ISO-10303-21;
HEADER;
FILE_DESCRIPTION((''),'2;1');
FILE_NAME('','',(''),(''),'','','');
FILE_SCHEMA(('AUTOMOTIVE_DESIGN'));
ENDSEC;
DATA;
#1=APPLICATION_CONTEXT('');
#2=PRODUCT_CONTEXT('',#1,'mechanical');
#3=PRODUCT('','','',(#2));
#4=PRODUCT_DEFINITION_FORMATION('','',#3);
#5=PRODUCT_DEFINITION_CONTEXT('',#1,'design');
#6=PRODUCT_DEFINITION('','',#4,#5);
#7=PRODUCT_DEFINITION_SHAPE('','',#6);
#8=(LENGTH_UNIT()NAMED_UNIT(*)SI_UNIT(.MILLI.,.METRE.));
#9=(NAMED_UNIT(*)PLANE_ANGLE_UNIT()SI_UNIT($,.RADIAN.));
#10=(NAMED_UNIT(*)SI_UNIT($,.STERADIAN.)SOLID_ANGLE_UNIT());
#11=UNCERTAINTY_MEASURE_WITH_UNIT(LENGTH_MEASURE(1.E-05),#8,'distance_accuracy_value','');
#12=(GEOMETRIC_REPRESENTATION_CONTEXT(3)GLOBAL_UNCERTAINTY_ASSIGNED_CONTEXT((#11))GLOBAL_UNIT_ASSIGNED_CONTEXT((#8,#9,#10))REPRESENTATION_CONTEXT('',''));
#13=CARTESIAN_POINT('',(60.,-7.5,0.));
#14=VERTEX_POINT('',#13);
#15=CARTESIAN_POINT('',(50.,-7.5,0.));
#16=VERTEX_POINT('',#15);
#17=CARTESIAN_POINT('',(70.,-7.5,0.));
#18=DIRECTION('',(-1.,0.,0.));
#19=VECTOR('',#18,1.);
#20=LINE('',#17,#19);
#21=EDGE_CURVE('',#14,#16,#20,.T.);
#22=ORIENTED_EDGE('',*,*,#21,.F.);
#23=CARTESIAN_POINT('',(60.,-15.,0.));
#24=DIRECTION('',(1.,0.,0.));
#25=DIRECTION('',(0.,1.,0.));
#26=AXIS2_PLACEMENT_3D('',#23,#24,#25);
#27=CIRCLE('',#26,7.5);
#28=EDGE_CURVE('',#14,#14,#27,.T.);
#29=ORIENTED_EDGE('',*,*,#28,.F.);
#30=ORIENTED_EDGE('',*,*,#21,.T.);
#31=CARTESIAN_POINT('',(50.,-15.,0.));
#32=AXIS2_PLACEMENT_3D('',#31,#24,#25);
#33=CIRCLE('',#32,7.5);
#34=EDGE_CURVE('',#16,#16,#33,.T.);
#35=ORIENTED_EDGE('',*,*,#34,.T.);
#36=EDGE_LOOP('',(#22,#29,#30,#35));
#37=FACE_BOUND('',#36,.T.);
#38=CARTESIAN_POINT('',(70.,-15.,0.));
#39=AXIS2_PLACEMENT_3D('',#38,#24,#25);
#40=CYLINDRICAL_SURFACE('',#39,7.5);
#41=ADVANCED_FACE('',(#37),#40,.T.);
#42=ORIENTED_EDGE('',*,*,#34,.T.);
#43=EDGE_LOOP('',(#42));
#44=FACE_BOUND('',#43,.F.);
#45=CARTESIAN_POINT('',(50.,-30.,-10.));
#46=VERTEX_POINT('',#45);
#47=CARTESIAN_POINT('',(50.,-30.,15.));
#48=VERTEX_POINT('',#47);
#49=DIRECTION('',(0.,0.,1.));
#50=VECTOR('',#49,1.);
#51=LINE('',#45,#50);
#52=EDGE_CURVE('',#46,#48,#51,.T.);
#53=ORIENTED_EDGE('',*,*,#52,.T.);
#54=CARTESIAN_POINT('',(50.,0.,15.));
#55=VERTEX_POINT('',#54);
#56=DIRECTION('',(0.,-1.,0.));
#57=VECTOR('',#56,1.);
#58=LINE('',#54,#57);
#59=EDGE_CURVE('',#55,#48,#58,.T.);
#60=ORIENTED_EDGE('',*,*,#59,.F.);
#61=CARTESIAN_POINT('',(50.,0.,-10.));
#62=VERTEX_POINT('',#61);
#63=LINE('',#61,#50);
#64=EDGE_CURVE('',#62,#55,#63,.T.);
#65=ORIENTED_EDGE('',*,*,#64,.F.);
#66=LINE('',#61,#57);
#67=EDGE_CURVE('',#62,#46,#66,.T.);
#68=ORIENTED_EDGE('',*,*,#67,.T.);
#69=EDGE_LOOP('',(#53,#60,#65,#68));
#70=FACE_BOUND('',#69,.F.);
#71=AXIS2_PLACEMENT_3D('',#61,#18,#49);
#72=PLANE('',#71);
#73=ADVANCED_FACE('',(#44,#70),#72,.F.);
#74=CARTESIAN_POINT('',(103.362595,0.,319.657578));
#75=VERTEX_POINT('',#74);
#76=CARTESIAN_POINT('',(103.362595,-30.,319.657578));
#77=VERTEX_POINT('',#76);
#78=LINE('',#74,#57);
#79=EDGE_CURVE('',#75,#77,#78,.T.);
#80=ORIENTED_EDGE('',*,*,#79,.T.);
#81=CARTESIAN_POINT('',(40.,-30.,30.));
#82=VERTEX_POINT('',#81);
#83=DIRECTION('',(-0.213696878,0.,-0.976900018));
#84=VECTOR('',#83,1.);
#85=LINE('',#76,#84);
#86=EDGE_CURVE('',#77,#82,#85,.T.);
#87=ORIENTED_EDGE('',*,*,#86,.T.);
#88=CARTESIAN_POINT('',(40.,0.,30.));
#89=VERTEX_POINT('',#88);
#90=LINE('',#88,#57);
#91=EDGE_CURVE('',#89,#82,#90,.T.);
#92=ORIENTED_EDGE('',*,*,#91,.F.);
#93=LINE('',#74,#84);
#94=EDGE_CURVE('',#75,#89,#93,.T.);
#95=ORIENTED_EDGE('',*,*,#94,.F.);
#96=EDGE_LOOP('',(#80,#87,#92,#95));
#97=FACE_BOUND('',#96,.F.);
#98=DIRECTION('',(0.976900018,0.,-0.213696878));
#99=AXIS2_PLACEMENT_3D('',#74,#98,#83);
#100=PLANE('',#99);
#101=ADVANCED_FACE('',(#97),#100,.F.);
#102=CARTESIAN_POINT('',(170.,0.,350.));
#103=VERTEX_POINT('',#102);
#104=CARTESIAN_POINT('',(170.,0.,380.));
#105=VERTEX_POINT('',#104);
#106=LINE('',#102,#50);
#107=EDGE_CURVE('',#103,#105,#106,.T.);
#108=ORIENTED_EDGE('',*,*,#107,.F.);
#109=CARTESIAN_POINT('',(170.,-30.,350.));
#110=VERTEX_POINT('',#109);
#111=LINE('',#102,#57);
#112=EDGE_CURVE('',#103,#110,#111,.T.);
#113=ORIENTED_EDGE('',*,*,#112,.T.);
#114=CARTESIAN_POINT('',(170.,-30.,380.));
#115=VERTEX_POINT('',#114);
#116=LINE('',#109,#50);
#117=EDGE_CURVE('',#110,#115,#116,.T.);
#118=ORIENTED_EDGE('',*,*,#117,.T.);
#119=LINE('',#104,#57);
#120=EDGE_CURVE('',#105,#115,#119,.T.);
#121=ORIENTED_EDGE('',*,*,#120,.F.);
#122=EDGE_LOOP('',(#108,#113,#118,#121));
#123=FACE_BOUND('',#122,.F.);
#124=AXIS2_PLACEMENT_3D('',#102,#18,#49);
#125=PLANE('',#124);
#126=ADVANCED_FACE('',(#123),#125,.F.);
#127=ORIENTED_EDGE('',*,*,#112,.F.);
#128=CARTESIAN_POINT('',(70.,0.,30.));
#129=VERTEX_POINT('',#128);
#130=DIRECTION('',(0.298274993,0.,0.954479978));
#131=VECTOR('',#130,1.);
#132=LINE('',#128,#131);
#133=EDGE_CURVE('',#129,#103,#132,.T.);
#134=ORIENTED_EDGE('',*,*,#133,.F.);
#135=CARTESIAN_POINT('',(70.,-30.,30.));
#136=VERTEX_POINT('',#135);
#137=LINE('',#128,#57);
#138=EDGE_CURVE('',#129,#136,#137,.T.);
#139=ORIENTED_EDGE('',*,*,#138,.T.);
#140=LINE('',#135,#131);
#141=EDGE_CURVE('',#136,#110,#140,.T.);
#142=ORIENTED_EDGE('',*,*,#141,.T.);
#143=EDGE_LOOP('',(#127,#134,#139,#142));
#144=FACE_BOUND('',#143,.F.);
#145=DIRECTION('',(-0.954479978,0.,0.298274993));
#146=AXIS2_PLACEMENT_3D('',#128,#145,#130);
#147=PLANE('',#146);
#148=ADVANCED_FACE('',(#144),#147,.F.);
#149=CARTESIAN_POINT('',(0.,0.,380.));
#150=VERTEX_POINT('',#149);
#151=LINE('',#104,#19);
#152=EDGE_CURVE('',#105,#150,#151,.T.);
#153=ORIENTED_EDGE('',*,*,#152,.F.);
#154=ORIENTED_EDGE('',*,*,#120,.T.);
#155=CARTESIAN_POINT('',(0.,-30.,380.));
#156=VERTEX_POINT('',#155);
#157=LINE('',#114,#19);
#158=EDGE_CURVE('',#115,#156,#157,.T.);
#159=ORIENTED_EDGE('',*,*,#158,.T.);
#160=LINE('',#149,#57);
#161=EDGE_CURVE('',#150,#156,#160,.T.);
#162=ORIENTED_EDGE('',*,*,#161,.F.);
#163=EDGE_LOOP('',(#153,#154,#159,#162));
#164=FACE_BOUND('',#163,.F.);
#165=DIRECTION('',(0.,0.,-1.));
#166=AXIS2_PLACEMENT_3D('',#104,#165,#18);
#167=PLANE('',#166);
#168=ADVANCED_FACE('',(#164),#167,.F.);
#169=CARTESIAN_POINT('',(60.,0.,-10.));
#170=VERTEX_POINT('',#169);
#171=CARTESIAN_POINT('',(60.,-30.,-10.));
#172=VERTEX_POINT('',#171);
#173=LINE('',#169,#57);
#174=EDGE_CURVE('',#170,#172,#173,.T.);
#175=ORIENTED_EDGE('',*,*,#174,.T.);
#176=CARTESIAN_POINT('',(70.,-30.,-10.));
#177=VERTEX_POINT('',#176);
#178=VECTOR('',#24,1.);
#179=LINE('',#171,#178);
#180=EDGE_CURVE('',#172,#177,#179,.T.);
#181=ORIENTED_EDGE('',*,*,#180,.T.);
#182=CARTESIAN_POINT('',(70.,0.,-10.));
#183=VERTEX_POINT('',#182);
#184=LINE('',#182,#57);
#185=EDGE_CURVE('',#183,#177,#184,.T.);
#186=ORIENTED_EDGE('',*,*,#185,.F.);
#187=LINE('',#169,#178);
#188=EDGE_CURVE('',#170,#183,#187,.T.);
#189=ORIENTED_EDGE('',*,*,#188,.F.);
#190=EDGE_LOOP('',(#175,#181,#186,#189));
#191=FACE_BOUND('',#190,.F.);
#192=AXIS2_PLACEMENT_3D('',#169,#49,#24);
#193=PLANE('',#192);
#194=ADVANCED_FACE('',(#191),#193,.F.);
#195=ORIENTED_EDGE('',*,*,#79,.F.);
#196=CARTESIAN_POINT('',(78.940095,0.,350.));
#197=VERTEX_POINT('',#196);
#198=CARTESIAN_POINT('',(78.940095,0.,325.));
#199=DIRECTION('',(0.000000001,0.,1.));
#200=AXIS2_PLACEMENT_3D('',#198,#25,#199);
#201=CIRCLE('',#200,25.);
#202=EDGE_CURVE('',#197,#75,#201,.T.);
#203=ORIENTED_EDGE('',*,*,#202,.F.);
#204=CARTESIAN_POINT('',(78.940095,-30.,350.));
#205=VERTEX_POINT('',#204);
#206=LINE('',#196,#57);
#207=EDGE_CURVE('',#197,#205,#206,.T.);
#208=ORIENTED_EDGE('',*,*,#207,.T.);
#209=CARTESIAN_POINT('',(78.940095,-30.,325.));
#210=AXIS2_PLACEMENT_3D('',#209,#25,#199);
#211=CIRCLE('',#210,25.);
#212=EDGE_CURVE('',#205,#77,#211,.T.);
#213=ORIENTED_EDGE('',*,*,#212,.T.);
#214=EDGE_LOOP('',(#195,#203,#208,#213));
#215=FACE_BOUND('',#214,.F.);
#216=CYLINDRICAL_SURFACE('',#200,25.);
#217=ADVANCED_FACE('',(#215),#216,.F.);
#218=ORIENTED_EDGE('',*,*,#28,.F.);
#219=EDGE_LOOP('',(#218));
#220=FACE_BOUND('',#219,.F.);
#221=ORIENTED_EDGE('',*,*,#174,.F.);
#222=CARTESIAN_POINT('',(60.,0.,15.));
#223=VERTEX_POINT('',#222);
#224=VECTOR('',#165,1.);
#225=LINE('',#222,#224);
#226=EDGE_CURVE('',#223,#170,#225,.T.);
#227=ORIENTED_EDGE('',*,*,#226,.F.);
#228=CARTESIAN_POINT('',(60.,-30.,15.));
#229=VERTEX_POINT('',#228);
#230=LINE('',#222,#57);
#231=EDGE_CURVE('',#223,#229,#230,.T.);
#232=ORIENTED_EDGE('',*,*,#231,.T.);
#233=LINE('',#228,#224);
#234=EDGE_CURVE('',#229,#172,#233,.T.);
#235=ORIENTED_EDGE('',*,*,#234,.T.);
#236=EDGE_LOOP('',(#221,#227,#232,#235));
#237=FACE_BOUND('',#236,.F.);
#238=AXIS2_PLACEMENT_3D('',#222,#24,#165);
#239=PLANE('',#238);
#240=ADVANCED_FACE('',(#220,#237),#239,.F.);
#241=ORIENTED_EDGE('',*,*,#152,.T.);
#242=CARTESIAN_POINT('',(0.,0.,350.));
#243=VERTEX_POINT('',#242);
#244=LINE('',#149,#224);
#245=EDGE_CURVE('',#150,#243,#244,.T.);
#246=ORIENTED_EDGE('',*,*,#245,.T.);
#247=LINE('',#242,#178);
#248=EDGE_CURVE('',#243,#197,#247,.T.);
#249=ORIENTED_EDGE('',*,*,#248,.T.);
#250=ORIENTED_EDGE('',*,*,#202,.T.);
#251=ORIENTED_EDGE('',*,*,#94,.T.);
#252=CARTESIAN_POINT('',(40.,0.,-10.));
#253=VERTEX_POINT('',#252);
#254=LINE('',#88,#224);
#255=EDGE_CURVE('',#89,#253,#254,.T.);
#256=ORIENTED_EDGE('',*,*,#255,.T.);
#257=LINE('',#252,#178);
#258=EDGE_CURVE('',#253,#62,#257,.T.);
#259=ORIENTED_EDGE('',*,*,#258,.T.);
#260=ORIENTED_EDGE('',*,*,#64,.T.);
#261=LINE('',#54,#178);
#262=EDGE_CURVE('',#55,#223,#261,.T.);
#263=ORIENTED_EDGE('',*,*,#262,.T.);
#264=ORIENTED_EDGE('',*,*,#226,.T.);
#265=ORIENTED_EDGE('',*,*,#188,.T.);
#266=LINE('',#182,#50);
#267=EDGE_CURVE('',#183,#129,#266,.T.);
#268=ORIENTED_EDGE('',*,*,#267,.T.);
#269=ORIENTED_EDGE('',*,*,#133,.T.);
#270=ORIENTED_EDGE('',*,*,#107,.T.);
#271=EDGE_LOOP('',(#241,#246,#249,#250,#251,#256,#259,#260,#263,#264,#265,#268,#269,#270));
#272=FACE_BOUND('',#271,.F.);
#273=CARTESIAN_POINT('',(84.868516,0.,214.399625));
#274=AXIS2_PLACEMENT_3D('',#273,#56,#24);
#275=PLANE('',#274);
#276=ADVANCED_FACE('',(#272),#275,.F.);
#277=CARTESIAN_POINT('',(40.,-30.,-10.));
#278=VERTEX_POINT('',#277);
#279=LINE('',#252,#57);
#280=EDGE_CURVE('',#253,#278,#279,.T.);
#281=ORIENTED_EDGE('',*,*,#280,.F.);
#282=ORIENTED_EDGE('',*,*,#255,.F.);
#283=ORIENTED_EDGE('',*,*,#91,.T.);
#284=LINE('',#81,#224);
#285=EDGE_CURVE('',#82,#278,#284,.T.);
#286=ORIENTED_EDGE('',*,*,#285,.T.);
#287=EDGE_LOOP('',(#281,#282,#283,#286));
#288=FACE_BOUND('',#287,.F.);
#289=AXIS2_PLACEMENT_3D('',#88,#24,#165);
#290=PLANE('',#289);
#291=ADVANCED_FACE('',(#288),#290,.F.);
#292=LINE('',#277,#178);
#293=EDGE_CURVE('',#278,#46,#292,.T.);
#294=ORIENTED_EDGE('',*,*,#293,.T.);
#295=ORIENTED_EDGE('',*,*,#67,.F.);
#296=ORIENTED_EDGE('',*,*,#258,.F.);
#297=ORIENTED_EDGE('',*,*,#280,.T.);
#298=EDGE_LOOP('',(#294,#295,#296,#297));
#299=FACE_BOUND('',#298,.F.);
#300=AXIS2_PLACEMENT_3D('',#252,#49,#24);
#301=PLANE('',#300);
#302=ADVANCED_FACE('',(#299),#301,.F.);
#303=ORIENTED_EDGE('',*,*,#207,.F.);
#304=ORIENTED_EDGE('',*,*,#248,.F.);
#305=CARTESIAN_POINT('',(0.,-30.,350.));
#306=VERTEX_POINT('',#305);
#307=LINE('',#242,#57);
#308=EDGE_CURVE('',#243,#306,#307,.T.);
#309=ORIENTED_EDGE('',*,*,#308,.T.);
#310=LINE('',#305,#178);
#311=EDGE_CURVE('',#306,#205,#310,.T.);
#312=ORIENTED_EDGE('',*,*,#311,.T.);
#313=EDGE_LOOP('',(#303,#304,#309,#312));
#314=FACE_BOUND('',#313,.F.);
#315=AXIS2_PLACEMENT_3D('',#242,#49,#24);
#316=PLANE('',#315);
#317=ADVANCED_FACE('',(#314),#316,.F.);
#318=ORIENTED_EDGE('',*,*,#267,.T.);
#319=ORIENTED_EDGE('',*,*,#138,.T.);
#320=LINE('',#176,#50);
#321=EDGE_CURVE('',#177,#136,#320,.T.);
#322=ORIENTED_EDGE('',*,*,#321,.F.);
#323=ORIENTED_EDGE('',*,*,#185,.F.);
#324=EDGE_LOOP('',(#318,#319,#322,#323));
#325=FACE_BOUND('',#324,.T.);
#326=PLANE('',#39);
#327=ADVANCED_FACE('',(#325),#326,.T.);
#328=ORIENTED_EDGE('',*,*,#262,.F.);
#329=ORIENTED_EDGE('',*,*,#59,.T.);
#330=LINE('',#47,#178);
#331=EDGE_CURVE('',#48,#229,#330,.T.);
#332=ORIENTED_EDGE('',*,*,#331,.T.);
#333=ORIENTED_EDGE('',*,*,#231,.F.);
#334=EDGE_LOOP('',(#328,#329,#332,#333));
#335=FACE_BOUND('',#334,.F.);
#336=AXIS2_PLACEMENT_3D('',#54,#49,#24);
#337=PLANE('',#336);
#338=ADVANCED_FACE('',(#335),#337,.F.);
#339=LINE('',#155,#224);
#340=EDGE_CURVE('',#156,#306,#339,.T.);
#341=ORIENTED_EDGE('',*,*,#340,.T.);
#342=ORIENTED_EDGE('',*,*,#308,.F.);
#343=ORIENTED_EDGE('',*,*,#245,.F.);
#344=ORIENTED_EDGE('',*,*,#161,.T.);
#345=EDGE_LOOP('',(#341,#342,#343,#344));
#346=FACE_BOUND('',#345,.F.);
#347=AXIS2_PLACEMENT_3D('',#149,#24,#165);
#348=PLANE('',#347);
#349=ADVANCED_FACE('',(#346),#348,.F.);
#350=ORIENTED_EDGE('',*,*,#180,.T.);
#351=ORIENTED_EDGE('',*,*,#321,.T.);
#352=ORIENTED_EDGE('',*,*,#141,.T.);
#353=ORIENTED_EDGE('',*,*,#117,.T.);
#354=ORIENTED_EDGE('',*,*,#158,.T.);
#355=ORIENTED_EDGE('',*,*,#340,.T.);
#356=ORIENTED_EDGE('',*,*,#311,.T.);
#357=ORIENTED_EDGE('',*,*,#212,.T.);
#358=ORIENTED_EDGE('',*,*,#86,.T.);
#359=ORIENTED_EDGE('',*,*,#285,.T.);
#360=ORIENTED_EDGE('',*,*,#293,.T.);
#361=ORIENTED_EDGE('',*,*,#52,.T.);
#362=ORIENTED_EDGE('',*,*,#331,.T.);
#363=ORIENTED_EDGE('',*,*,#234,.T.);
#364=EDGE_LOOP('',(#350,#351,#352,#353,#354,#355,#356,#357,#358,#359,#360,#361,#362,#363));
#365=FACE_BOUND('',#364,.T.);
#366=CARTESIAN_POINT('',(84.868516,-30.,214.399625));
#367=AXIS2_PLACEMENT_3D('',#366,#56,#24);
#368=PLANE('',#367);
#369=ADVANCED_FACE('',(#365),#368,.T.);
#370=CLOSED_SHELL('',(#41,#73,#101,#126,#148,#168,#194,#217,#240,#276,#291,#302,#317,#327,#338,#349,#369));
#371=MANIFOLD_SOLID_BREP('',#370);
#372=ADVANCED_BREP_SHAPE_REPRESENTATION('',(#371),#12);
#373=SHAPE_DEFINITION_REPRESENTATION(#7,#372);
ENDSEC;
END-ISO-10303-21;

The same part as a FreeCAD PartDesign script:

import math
import FreeCAD as App
import Part
import Sketcher

doc = App.newDocument("Part")
body = doc.addObject("PartDesign::Body", "Body")

sketch1 = body.newObject("Sketcher::SketchObject", "Sketch")
sketch1.AttachmentSupport = (doc.getObject("XZ_Plane"), [""])
sketch1.MapMode = "FlatFace"
sketch1.addGeometry(Part.ArcOfCircle(Part.Circle(App.Vector(79, 325, 0), App.Vector(0, 0, 1), 25), math.radians(-12), math.radians(90)), False)
sketch1.addGeometry(Part.LineSegment(App.Vector(103, 320, 0), App.Vector(40, 30, 0)), False)
sketch1.addGeometry(Part.LineSegment(App.Vector(40, 30, 0), App.Vector(40, -10, 0)), False)
sketch1.addGeometry(Part.LineSegment(App.Vector(40, -10, 0), App.Vector(50, -10, 0)), False)
sketch1.addGeometry(Part.LineSegment(App.Vector(50, -10, 0), App.Vector(50, 15, 0)), False)
sketch1.addGeometry(Part.LineSegment(App.Vector(50, 15, 0), App.Vector(60, 15, 0)), False)
sketch1.addGeometry(Part.LineSegment(App.Vector(60, 15, 0), App.Vector(60, -10, 0)), False)
sketch1.addGeometry(Part.LineSegment(App.Vector(60, -10, 0), App.Vector(70, -10, 0)), False)
sketch1.addGeometry(Part.LineSegment(App.Vector(70, -10, 0), App.Vector(70, 30, 0)), False)
sketch1.addGeometry(Part.LineSegment(App.Vector(70, 30, 0), App.Vector(170, 350, 0)), False)
sketch1.addGeometry(Part.LineSegment(App.Vector(170, 350, 0), App.Vector(170, 380, 0)), False)
sketch1.addGeometry(Part.LineSegment(App.Vector(170, 380, 0), App.Vector(0, 380, 0)), False)
sketch1.addGeometry(Part.LineSegment(App.Vector(0, 380, 0), App.Vector(0, 350, 0)), False)
sketch1.addGeometry(Part.LineSegment(App.Vector(0, 350, 0), App.Vector(79, 350, 0)), False)
sketch1.addConstraint(Sketcher.Constraint("Tangent", 0, 1, 1, 1))
sketch1.addConstraint(Sketcher.Constraint("Coincident", 1, 2, 2, 1))
sketch1.addConstraint(Sketcher.Constraint("Coincident", 2, 2, 3, 1))
sketch1.addConstraint(Sketcher.Constraint("Coincident", 3, 2, 4, 1))
sketch1.addConstraint(Sketcher.Constraint("Coincident", 4, 2, 5, 1))
sketch1.addConstraint(Sketcher.Constraint("Coincident", 5, 2, 6, 1))
sketch1.addConstraint(Sketcher.Constraint("Coincident", 6, 2, 7, 1))
sketch1.addConstraint(Sketcher.Constraint("Coincident", 7, 2, 8, 1))
sketch1.addConstraint(Sketcher.Constraint("Coincident", 8, 2, 9, 1))
sketch1.addConstraint(Sketcher.Constraint("Coincident", 9, 2, 10, 1))
sketch1.addConstraint(Sketcher.Constraint("Coincident", 10, 2, 11, 1))
sketch1.addConstraint(Sketcher.Constraint("Coincident", 11, 2, 12, 1))
sketch1.addConstraint(Sketcher.Constraint("Coincident", 12, 2, 13, 1))
sketch1.addConstraint(Sketcher.Constraint("Tangent", 13, 2, 0, 2))
sketch1.addConstraint(Sketcher.Constraint("Vertical", 2))
sketch1.addConstraint(Sketcher.Constraint("Horizontal", 3))
sketch1.addConstraint(Sketcher.Constraint("Vertical", 4))
sketch1.addConstraint(Sketcher.Constraint("Horizontal", 5))
sketch1.addConstraint(Sketcher.Constraint("Vertical", 6))
sketch1.addConstraint(Sketcher.Constraint("Horizontal", 7))
sketch1.addConstraint(Sketcher.Constraint("Vertical", 8))
sketch1.addConstraint(Sketcher.Constraint("Vertical", 10))
sketch1.addConstraint(Sketcher.Constraint("Horizontal", 11))
sketch1.addConstraint(Sketcher.Constraint("Vertical", 12))
sketch1.addConstraint(Sketcher.Constraint("Horizontal", 13))
sketch1.addConstraint(Sketcher.Constraint("PointOnObject", 11, 2, -2))
sketch1.addConstraint(Sketcher.Constraint("Horizontal", 3, 2, 6, 2))
sketch1.addConstraint(Sketcher.Constraint("Horizontal", 1, 2, 8, 2))
sketch1.addConstraint(Sketcher.Constraint("Horizontal", 9, 2, 12, 2))
sketch1.addConstraint(Sketcher.Constraint("Equal", 3, 5))
sketch1.addConstraint(Sketcher.Constraint("Equal", 5, 7))
sketch1.addConstraint(Sketcher.Constraint("Radius", 0, 25.0))
sketch1.addConstraint(Sketcher.Constraint("DistanceX", 3, 1, 3, 2, 10.0))
sketch1.addConstraint(Sketcher.Constraint("DistanceX", 11, 2, 11, 1, 170.0))
sketch1.addConstraint(Sketcher.Constraint("DistanceY", 2, 2, 2, 1, 40.0))
sketch1.addConstraint(Sketcher.Constraint("DistanceY", 4, 1, 4, 2, 25.0))
sketch1.addConstraint(Sketcher.Constraint("DistanceY", 10, 1, 10, 2, 30.0))
sketch1.addConstraint(Sketcher.Constraint("DistanceY", -1, 1, 0, 3, 325.0))
sketch1.addConstraint(Sketcher.Constraint("DistanceX", -1, 1, 1, 2, 40.0))
sketch1.addConstraint(Sketcher.Constraint("DistanceY", -1, 1, 1, 2, 30.0))
sketch1.addConstraint(Sketcher.Constraint("Distance", 1, 296.506882))
pad1 = body.newObject("PartDesign::Pad", "Pad")
pad1.Profile = sketch1
pad1.Length = 30

sketch2 = body.newObject("Sketcher::SketchObject", "Sketch001")
sketch2.AttachmentSupport = (doc.getObject("YZ_Plane"), [""])
sketch2.MapMode = "FlatFace"
sketch2.AttachmentOffset = App.Placement(App.Vector(0, 0, 70), App.Rotation())
sketch2.addGeometry(Part.Circle(App.Vector(-15, 0, 0), App.Vector(0, 0, 1), 8), False)
sketch2.addConstraint(Sketcher.Constraint("PointOnObject", 0, 3, -1))
sketch2.addConstraint(Sketcher.Constraint("Diameter", 0, 15.0))
sketch2.addConstraint(Sketcher.Constraint("DistanceX", 0, 3, -1, 1, 15.0))
pad2 = body.newObject("PartDesign::Pad", "Pad001")
pad2.Profile = sketch2
pad2.Length = 22.9
pad2.Reversed = True

doc.recompute()
